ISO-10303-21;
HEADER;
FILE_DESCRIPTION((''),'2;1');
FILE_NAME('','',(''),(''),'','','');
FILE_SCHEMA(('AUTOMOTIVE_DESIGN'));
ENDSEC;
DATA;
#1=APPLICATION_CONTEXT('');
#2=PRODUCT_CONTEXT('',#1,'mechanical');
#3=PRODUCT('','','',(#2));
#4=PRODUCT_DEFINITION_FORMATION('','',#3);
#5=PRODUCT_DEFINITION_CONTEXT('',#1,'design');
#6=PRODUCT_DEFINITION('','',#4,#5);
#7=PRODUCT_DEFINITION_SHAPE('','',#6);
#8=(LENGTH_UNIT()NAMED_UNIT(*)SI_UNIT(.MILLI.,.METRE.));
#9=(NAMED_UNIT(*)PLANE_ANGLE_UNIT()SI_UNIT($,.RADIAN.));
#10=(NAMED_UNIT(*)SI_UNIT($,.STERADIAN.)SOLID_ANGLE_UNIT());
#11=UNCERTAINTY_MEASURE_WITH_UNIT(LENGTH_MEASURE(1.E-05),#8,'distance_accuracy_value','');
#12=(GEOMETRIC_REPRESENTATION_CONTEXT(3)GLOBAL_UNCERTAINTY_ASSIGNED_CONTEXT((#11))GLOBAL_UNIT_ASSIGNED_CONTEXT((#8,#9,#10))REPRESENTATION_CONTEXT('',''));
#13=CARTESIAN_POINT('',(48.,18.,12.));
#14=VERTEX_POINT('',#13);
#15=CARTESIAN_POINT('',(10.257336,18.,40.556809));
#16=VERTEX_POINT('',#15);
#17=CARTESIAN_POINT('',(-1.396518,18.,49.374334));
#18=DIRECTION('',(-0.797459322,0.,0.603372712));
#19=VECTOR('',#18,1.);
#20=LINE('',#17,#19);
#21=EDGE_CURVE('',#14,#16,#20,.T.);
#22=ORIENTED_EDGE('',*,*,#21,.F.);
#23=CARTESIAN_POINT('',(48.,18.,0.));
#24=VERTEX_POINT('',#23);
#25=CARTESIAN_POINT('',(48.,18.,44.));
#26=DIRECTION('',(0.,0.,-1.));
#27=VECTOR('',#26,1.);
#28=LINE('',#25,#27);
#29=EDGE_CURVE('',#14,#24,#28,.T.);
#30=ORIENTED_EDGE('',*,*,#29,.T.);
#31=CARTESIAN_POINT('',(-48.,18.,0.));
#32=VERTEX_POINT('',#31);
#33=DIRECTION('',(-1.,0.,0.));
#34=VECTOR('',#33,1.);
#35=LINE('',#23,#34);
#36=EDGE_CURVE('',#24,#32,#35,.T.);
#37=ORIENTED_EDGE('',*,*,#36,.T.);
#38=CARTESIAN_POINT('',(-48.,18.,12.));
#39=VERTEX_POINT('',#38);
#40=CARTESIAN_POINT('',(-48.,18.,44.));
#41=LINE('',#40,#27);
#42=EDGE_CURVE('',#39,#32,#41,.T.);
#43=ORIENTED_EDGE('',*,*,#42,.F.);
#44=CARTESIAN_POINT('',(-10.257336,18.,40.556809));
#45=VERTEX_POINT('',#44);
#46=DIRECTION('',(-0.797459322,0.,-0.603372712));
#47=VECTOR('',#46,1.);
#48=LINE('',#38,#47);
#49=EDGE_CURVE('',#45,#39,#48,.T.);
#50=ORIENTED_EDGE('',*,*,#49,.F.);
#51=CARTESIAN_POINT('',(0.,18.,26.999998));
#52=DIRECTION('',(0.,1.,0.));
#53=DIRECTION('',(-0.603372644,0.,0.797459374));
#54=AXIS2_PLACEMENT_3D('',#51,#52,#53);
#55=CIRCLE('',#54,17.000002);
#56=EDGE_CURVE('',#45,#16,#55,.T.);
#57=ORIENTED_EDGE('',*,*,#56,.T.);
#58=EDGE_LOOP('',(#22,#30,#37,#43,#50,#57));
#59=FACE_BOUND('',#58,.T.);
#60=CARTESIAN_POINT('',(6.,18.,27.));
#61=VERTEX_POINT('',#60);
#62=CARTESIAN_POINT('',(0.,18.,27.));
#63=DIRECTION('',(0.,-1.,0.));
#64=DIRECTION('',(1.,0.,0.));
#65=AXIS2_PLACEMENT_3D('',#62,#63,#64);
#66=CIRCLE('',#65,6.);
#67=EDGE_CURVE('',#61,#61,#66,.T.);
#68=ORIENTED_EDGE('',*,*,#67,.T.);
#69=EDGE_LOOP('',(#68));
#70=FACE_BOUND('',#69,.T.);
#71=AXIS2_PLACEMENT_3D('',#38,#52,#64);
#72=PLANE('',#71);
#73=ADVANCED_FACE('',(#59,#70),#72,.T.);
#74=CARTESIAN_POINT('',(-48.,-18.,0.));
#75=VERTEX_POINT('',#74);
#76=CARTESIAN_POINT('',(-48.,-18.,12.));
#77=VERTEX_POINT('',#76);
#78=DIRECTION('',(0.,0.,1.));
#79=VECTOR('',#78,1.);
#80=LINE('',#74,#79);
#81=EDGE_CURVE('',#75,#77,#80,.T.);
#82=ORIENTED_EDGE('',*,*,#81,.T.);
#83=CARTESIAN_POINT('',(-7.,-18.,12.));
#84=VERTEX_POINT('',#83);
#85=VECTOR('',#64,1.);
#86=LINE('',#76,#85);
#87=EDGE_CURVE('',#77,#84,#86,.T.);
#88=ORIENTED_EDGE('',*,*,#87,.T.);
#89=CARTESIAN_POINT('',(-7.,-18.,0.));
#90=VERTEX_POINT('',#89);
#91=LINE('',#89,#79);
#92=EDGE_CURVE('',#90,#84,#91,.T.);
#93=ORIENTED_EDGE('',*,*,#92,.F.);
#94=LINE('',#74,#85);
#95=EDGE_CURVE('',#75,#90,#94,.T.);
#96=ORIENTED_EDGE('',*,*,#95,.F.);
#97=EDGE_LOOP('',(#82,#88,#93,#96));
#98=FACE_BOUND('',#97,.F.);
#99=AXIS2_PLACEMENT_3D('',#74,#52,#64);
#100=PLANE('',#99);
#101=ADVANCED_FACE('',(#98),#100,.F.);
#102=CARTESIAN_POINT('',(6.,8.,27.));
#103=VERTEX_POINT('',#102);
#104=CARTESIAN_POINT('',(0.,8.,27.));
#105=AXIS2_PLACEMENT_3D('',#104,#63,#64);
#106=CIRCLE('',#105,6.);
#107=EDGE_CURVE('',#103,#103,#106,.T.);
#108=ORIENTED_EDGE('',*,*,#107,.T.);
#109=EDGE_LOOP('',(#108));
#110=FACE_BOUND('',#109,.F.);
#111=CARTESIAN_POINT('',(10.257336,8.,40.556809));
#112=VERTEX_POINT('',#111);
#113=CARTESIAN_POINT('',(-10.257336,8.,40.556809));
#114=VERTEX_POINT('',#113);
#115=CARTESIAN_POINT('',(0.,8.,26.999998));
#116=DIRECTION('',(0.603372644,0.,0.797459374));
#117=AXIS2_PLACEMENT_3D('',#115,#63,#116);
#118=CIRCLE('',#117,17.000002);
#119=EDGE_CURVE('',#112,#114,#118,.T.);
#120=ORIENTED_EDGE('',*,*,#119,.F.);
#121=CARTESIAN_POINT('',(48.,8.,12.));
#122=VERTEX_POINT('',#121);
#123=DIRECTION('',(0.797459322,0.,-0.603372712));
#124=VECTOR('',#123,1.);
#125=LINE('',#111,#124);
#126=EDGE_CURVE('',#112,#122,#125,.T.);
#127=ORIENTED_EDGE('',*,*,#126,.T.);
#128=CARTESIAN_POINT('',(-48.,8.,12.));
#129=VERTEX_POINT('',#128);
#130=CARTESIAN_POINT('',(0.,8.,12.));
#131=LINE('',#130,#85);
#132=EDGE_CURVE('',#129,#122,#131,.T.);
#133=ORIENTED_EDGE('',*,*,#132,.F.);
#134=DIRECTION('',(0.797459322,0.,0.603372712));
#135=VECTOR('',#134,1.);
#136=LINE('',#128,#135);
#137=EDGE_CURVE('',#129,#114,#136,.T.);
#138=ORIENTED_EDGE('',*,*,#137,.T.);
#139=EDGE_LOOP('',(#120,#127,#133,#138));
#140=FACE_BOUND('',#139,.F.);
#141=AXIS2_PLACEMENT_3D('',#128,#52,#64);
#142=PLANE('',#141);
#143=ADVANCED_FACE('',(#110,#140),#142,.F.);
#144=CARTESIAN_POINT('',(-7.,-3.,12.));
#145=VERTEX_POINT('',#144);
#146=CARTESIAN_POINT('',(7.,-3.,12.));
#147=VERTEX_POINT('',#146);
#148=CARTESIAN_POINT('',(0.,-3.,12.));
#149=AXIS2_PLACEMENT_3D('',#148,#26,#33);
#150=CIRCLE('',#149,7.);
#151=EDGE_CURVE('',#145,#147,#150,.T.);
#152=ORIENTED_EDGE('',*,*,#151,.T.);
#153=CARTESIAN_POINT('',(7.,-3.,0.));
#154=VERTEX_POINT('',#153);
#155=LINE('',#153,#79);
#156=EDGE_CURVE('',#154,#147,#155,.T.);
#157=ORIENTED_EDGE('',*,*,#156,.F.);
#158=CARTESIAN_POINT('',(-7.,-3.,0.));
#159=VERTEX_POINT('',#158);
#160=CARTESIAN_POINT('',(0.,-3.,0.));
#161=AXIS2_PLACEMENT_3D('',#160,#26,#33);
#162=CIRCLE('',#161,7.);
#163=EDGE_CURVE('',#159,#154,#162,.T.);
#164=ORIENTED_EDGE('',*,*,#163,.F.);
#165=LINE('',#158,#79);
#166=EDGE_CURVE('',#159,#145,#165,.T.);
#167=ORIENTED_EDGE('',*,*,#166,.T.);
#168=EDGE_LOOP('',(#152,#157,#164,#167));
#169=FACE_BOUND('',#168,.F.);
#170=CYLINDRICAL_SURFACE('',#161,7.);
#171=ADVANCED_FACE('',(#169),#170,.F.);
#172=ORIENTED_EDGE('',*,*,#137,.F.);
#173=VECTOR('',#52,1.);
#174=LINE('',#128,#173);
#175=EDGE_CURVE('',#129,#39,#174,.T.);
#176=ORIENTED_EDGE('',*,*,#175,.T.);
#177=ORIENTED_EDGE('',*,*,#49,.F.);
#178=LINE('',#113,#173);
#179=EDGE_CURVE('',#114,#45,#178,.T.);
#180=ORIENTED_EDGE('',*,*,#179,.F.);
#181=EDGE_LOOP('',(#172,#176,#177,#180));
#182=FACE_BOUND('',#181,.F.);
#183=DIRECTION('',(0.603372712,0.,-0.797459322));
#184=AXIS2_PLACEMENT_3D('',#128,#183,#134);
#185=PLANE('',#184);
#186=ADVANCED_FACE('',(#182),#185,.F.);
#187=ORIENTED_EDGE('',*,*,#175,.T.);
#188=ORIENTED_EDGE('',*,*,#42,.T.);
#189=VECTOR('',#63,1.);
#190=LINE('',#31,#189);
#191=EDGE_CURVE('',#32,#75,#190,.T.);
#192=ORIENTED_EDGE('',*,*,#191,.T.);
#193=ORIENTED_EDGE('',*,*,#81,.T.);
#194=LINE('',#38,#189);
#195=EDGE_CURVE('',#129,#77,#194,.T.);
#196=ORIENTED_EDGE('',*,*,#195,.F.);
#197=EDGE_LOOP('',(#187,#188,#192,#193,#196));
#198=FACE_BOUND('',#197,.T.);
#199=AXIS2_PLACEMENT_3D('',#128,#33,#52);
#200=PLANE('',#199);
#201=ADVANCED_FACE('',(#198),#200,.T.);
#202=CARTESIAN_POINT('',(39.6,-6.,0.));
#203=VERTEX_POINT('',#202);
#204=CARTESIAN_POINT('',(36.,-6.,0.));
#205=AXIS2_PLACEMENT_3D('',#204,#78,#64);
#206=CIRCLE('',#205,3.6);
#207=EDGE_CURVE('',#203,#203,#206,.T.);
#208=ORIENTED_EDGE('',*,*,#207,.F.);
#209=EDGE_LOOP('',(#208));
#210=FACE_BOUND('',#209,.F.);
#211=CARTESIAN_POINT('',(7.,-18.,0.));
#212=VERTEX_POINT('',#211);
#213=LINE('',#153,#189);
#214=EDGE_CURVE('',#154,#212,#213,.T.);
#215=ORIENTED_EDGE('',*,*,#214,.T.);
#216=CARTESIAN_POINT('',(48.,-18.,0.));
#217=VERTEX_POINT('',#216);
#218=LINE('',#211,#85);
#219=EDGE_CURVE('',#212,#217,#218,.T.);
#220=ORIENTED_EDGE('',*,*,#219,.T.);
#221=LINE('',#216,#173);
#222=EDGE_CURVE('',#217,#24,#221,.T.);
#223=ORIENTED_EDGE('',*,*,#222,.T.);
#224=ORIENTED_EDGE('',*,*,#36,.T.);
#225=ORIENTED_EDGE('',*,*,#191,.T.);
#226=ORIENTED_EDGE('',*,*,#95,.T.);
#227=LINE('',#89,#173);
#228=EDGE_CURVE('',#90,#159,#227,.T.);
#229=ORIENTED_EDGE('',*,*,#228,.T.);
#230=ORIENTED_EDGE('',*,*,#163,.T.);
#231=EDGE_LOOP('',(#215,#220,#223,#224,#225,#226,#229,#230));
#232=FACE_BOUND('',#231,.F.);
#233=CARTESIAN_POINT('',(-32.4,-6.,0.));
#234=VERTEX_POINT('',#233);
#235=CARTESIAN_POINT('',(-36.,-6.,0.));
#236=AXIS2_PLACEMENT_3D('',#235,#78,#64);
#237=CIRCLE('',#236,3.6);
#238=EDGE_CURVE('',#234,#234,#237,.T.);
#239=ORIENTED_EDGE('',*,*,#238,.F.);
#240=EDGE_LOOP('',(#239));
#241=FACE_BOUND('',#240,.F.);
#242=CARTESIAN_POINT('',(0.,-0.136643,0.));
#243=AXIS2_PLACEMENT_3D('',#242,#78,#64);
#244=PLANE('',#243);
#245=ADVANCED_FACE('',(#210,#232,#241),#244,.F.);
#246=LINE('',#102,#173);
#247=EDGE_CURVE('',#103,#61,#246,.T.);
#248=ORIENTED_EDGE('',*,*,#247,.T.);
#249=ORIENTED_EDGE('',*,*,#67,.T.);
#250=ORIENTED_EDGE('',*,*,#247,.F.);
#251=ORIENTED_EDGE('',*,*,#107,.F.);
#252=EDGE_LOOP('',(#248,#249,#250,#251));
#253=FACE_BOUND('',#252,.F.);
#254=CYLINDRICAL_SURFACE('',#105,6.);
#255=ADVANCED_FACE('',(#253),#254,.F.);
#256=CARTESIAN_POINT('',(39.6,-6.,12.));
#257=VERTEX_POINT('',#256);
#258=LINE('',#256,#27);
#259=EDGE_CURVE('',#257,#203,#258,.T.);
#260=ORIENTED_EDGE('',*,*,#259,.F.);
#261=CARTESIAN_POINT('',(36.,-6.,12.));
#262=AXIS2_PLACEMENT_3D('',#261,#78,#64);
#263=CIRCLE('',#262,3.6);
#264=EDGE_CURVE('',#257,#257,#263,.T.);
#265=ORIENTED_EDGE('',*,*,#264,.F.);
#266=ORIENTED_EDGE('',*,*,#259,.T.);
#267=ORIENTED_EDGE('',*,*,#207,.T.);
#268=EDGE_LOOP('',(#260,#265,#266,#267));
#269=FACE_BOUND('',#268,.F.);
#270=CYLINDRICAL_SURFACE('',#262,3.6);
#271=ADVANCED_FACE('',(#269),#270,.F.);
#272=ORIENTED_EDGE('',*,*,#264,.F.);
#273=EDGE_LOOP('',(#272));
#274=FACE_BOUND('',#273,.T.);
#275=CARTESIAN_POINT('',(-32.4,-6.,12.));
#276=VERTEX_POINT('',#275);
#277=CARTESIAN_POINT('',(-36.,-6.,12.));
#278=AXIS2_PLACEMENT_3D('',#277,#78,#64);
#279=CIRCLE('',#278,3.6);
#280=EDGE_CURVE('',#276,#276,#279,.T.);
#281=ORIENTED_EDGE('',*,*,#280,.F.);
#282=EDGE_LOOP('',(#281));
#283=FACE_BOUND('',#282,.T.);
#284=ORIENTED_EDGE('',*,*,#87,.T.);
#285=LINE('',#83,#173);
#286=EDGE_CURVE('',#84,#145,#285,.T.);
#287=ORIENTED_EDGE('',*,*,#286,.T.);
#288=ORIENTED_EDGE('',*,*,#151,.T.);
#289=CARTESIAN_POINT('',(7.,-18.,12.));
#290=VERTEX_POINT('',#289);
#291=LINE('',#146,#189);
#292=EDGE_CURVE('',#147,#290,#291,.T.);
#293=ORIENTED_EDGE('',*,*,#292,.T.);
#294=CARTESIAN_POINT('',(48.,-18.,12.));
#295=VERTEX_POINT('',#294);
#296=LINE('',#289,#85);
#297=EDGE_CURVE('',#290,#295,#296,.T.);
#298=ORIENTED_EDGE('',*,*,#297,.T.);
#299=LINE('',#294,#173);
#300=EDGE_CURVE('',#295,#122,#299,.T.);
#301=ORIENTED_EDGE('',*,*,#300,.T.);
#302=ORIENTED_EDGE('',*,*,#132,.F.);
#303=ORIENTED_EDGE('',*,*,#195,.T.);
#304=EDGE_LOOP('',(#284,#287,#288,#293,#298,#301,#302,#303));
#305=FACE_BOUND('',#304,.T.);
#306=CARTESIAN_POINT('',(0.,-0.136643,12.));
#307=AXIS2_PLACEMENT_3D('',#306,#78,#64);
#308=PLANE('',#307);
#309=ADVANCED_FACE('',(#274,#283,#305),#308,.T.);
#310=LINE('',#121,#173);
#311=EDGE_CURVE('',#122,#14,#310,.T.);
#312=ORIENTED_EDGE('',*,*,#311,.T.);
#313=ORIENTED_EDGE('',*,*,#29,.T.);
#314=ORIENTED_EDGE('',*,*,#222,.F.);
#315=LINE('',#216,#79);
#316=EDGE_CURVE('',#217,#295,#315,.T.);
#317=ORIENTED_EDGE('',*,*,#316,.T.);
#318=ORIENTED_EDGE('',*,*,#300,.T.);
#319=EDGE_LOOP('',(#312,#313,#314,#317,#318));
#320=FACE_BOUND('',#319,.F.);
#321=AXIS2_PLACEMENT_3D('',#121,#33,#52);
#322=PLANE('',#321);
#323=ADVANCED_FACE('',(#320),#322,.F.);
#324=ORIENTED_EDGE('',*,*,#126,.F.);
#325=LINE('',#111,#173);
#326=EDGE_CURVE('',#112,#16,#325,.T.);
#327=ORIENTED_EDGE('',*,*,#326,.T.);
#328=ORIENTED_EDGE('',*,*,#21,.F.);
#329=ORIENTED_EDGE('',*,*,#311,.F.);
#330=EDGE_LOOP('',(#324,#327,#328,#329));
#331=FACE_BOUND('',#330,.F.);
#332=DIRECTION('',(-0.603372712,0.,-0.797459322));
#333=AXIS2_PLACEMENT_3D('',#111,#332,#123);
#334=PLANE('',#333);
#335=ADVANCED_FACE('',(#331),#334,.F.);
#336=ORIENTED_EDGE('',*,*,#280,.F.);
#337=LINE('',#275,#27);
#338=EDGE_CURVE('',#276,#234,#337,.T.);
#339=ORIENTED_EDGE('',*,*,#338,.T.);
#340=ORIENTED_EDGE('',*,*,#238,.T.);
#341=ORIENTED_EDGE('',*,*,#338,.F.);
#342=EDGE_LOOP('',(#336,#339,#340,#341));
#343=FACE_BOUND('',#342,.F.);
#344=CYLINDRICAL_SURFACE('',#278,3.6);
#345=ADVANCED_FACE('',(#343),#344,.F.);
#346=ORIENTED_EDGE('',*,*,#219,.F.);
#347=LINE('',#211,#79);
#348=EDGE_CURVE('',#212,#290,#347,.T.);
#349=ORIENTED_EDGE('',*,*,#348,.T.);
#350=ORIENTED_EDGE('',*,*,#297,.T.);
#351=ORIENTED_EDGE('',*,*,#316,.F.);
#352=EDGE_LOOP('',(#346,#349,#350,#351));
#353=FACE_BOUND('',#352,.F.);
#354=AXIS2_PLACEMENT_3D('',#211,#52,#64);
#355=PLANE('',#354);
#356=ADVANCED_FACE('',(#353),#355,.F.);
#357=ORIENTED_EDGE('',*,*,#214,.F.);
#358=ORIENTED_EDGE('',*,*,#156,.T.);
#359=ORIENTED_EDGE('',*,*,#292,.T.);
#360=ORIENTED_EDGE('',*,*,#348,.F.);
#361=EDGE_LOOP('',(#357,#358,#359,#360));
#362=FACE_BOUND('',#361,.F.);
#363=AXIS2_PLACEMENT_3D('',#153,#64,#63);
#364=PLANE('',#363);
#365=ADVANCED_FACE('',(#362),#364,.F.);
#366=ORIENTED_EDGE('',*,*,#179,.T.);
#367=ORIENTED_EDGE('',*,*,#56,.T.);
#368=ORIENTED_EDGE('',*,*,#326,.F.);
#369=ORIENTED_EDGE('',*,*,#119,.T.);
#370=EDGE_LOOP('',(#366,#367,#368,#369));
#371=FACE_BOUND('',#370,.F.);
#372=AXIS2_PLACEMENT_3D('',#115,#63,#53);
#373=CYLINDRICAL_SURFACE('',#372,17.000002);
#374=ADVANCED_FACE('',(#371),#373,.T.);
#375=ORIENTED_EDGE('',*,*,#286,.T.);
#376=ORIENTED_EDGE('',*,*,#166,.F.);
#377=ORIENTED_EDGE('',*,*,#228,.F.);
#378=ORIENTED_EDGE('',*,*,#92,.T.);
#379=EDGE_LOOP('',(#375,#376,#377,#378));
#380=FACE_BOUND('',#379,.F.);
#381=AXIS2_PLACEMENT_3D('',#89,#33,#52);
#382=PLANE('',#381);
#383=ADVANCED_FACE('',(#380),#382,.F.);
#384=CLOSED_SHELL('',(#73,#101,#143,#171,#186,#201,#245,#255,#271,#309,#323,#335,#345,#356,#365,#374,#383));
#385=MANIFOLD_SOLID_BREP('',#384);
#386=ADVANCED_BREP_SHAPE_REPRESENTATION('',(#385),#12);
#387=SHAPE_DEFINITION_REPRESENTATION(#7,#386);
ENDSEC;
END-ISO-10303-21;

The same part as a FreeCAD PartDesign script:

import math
import FreeCAD as App
import Part
import Sketcher
from FreeCAD import Vector
Q = App.Units.Quantity

doc = App.newDocument("Part")
params = doc.addObject("Spreadsheet::Sheet", "Params")
for row, (alias, value) in enumerate([
    ("sketch1_radius", "7 mm"),
    ("sketch1_width", "41 mm"),
    ("sketch1_height", "36 mm"),
    ("sketch1_height2", "15 mm"),
    ("pad1_length", "12 mm"),
    ("sketch2_diameter", "7.2 mm"),
    ("sketch3_width", "96 mm"),
    ("sketch3_height", "10 mm"),
    ("pad2_length", "32 mm"),
    ("sketch4_diameter", "12 mm"),
    ("sketch5_radius", "17.000002 mm"),
    ("sketch5_width", "96 mm"),
    ("pocket3_length", "25 mm"),
], start=1):
    params.set(f"A{row}", alias)
    params.set(f"B{row}", "=" + value)
    params.setAlias(f"B{row}", alias)

body = doc.addObject("PartDesign::Body", "Body")

# Sketch on XY plane
sketch1 = body.newObject("Sketcher::SketchObject", "Sketch")
sketch1.AttachmentSupport = (doc.getObject("XY_Plane"), [""])
sketch1.MapMode = "FlatFace"
sketch1.addGeometry(Part.LineSegment(Vector(7, -18, 0), Vector(48, -18, 0)), False)
sketch1.addGeometry(Part.LineSegment(Vector(48, -18, 0), Vector(48, 18, 0)), False)
sketch1.addGeometry(Part.LineSegment(Vector(48, 18, 0), Vector(-48, 18, 0)), False)
sketch1.addGeometry(Part.LineSegment(Vector(-48, 18, 0), Vector(-48, -18, 0)), False)
sketch1.addGeometry(Part.LineSegment(Vector(-48, -18, 0), Vector(-7, -18, 0)), False)
sketch1.addGeometry(Part.LineSegment(Vector(-7, -18, 0), Vector(-7, -3, 0)), False)
sketch1.addGeometry(Part.ArcOfCircle(Part.Circle(Vector(0, -3, 0), Vector(0, 0, 1), 7), math.radians(0), math.radians(180)), False)
sketch1.addGeometry(Part.LineSegment(Vector(7, -3, 0), Vector(7, -18, 0)), False)
sketch1.addConstraint(Sketcher.Constraint("Coincident", 0, 2, 1, 1))
sketch1.addConstraint(Sketcher.Constraint("Coincident", 1, 2, 2, 1))
sketch1.addConstraint(Sketcher.Constraint("Coincident", 2, 2, 3, 1))
sketch1.addConstraint(Sketcher.Constraint("Coincident", 3, 2, 4, 1))
sketch1.addConstraint(Sketcher.Constraint("Coincident", 4, 2, 5, 1))
sketch1.addConstraint(Sketcher.Constraint("Tangent", 5, 2, 6, 2))
sketch1.addConstraint(Sketcher.Constraint("Tangent", 6, 1, 7, 1))
sketch1.addConstraint(Sketcher.Constraint("Coincident", 7, 2, 0, 1))
sketch1.addConstraint(Sketcher.Constraint("Horizontal", 0))
sketch1.addConstraint(Sketcher.Constraint("Vertical", 1))
sketch1.addConstraint(Sketcher.Constraint("Horizontal", 2))
sketch1.addConstraint(Sketcher.Constraint("Vertical", 3))
sketch1.addConstraint(Sketcher.Constraint("Horizontal", 4))
sketch1.addConstraint(Sketcher.Constraint("Vertical", 5))
sketch1.addConstraint(Sketcher.Constraint("Vertical", 7))
sketch1.addConstraint(Sketcher.Constraint("Symmetric", 0, 2, 2, 2, -1, 1))
sketch1.addConstraint(Sketcher.Constraint("Symmetric", 4, 2, 7, 2, -2))
sketch1.addConstraint(Sketcher.Constraint("Radius", 6, Q("7 mm")))
sketch1.addConstraint(Sketcher.Constraint("DistanceX", 0, 1, 0, 2, Q("41 mm")))
sketch1.addConstraint(Sketcher.Constraint("DistanceY", 1, 1, 1, 2, Q("36 mm")))
sketch1.addConstraint(Sketcher.Constraint("DistanceY", 5, 1, 5, 2, Q("15 mm")))
sketch1.setExpression("Constraints[17]", "Params.sketch1_radius")
sketch1.setExpression("Constraints[18]", "Params.sketch1_width")
sketch1.setExpression("Constraints[19]", "Params.sketch1_height")
sketch1.setExpression("Constraints[20]", "Params.sketch1_height2")
pad1 = body.newObject("PartDesign::Pad", "Pad")
pad1.Profile = sketch1
pad1.setExpression("Length", "Params.pad1_length")

# Sketch on XY plane
sketch2 = body.newObject("Sketcher::SketchObject", "Sketch001")
sketch2.AttachmentSupport = (doc.getObject("XY_Plane"), [""])
sketch2.MapMode = "FlatFace"
sketch2.AttachmentOffset = App.Placement(Vector(0, 0, 12), App.Rotation())
sketch2.addGeometry(Part.Circle(Vector(36, -6, 0), Vector(0, 0, 1), 3.6), False)
sketch2.addGeometry(Part.Circle(Vector(-36, -6, 0), Vector(0, 0, 1), 3.6), False)
sketch2.addConstraint(Sketcher.Constraint("Equal", 0, 1))
sketch2.addConstraint(Sketcher.Constraint("Symmetric", 0, 3, 1, 3, -2))
sketch2.addConstraint(Sketcher.Constraint("Diameter", 0, Q("7.2 mm")))
sketch2.addConstraint(Sketcher.Constraint("DistanceX", -1, 1, 0, 3, Q("36 mm")))
sketch2.addConstraint(Sketcher.Constraint("DistanceY", 0, 3, -1, 1, Q("6 mm")))
sketch2.setExpression("Constraints[2]", "Params.sketch2_diameter")
pocket1 = body.newObject("PartDesign::Pocket", "Pocket")
pocket1.Profile = sketch2
pocket1.Type = "ThroughAll"

# Sketch on XY plane
sketch3 = body.newObject("Sketcher::SketchObject", "Sketch002")
sketch3.AttachmentSupport = (doc.getObject("XY_Plane"), [""])
sketch3.MapMode = "FlatFace"
sketch3.AttachmentOffset = App.Placement(Vector(0, 0, 12), App.Rotation())
sketch3.addGeometry(Part.LineSegment(Vector(-48, 18, 0), Vector(-48, 8, 0)), False)
sketch3.addGeometry(Part.LineSegment(Vector(-48, 8, 0), Vector(48, 8, 0)), False)
sketch3.addGeometry(Part.LineSegment(Vector(48, 8, 0), Vector(48, 18, 0)), False)
sketch3.addGeometry(Part.LineSegment(Vector(48, 18, 0), Vector(-48, 18, 0)), False)
sketch3.addConstraint(Sketcher.Constraint("Coincident", 0, 2, 1, 1))
sketch3.addConstraint(Sketcher.Constraint("Coincident", 1, 2, 2, 1))
sketch3.addConstraint(Sketcher.Constraint("Coincident", 2, 2, 3, 1))
sketch3.addConstraint(Sketcher.Constraint("Coincident", 3, 2, 0, 1))
sketch3.addConstraint(Sketcher.Constraint("Vertical", 0))
sketch3.addConstraint(Sketcher.Constraint("Horizontal", 1))
sketch3.addConstraint(Sketcher.Constraint("Vertical", 2))
sketch3.addConstraint(Sketcher.Constraint("Horizontal", 3))
sketch3.addConstraint(Sketcher.Constraint("DistanceX", 1, 1, 1, 2, Q("96 mm")))
sketch3.addConstraint(Sketcher.Constraint("DistanceY", 0, 2, 0, 1, Q("10 mm")))
sketch3.addConstraint(Sketcher.Constraint("DistanceX", 0, 2, -1, 1, Q("48 mm")))
sketch3.addConstraint(Sketcher.Constraint("DistanceY", -1, 1, 0, 2, Q("8 mm")))
sketch3.setExpression("Constraints[8]", "Params.sketch3_width")
sketch3.setExpression("Constraints[9]", "Params.sketch3_height")
pad2 = body.newObject("PartDesign::Pad", "Pad001")
pad2.Profile = sketch3
pad2.setExpression("Length", "Params.pad2_length")

# Sketch on XZ plane
sketch4 = body.newObject("Sketcher::SketchObject", "Sketch003")
sketch4.AttachmentSupport = (doc.getObject("XZ_Plane"), [""])
sketch4.MapMode = "FlatFace"
sketch4.AttachmentOffset = App.Placement(Vector(0, 0, -8), App.Rotation())
sketch4.addGeometry(Part.Circle(Vector(0, 27, 0), Vector(0, 0, 1), 6), False)
sketch4.addConstraint(Sketcher.Constraint("PointOnObject", 0, 3, -2))
sketch4.addConstraint(Sketcher.Constraint("Diameter", 0, Q("12 mm")))
sketch4.addConstraint(Sketcher.Constraint("DistanceY", -1, 1, 0, 3, Q("27 mm")))
sketch4.setExpression("Constraints[1]", "Params.sketch4_diameter")
pocket2 = body.newObject("PartDesign::Pocket", "Pocket001")
pocket2.Profile = sketch4
pocket2.Type = "ThroughAll"

# Sketch on XZ plane
sketch5 = body.newObject("Sketcher::SketchObject", "Sketch004")
sketch5.AttachmentSupport = (doc.getObject("XZ_Plane"), [""])
sketch5.MapMode = "FlatFace"
sketch5.AttachmentOffset = App.Placement(Vector(0, 0, -8), App.Rotation())
sketch5.addGeometry(Part.ArcOfCircle(Part.Circle(Vector(0, 27, 0), Vector(0, 0, 1), 17), math.radians(53), math.radians(127)), False)
sketch5.addGeometry(Part.LineSegment(Vector(10, 41, 0), Vector(48, 12, 0)), False)
sketch5.addGeometry(Part.LineSegment(Vector(48, 12, 0), Vector(48, 45, 0)), False)
sketch5.addGeometry(Part.LineSegment(Vector(48, 45, 0), Vector(-48, 45, 0)), False)
sketch5.addGeometry(Part.LineSegment(Vector(-48, 45, 0), Vector(-48, 12, 0)), False)
sketch5.addGeometry(Part.LineSegment(Vector(-48, 12, 0), Vector(-10, 41, 0)), False)
sketch5.addConstraint(Sketcher.Constraint("Tangent", 0, 1, 1, 1))
sketch5.addConstraint(Sketcher.Constraint("Coincident", 1, 2, 2, 1))
sketch5.addConstraint(Sketcher.Constraint("Coincident", 2, 2, 3, 1))
sketch5.addConstraint(Sketcher.Constraint("Coincident", 3, 2, 4, 1))
sketch5.addConstraint(Sketcher.Constraint("Coincident", 4, 2, 5, 1))
sketch5.addConstraint(Sketcher.Constraint("Tangent", 5, 2, 0, 2))
sketch5.addConstraint(Sketcher.Constraint("Vertical", 2))
sketch5.addConstraint(Sketcher.Constraint("Horizontal", 3))
sketch5.addConstraint(Sketcher.Constraint("Vertical", 4))
sketch5.addConstraint(Sketcher.Constraint("Symmetric", 1, 2, 4, 2, -2))
sketch5.addConstraint(Sketcher.Constraint("PointOnObject", 0, 3, -2))
sketch5.addConstraint(Sketcher.Constraint("Radius", 0, Q("17.000002 mm")))
sketch5.addConstraint(Sketcher.Constraint("DistanceX", 3, 2, 3, 1, Q("96 mm")))
sketch5.addConstraint(Sketcher.Constraint("DistanceY", -1, 1, 0, 3, Q("26.999998 mm")))
sketch5.addConstraint(Sketcher.Constraint("DistanceY", -1, 1, 1, 2, Q("12 mm")))
sketch5.addConstraint(Sketcher.Constraint("DistanceY", 2, 1, 2, 2, Q("32.921719 mm")))
sketch5.setExpression("Constraints[11]", "Params.sketch5_radius")
sketch5.setExpression("Constraints[12]", "Params.sketch5_width")
pocket3 = body.newObject("PartDesign::Pocket", "Pocket002")
pocket3.Profile = sketch5
pocket3.setExpression("Length", "Params.pocket3_length")

doc.recompute()
